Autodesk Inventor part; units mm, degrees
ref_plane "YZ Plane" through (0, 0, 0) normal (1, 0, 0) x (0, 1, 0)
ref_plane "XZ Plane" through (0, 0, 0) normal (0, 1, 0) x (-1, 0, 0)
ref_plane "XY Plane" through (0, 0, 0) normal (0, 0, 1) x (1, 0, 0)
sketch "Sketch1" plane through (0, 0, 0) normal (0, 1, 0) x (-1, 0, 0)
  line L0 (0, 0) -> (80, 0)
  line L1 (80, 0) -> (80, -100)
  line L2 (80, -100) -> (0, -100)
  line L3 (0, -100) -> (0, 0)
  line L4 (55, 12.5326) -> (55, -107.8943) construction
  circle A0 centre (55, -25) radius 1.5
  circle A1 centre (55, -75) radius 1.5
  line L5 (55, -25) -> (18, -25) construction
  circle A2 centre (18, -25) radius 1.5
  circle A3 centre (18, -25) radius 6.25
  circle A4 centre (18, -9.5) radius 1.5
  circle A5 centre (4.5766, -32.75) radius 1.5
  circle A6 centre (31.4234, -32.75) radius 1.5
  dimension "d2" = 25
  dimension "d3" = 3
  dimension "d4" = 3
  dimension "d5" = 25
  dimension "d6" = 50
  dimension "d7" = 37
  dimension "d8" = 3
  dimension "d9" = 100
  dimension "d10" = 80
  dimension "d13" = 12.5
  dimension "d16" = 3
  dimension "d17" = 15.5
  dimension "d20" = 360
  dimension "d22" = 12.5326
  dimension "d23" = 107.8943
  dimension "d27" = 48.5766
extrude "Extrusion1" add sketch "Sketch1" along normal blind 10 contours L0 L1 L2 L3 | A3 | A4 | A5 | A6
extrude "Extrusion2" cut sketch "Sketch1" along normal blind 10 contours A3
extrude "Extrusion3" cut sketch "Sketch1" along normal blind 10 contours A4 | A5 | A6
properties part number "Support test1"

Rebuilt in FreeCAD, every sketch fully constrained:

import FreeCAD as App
import Part
import Sketcher

V = App.Vector
Q = App.Units.Quantity

doc = App.newDocument("Part")
params = doc.addObject("Spreadsheet::Sheet", "Params")
for row, (alias, value) in enumerate([
    ("sketch1_diameter", "3 mm"),
    ("sketch1_width", "80 mm"),
    ("sketch1_height", "100 mm"),
    ("pad1_length", "10 mm"),
    ("sketch2_diameter", "3 mm"),
    ("sketch2_diameter2", "12.5 mm"),
    ("pocket1_length", "10 mm"),
    ("sketch3_diameter", "3 mm"),
    ("pocket2_length", "10 mm"),
], start=1):
    params.set(f"A{row}", alias)
    params.set(f"B{row}", "=" + value)
    params.setAlias(f"B{row}", alias)

body = doc.addObject("PartDesign::Body", "Body")

sketch1 = body.newObject("Sketcher::SketchObject", "Sketch")
sketch1.AttachmentSupport = (doc.getObject("XZ_Plane"), [""])
sketch1.MapMode = "FlatFace"
sketch1.addGeometry([
    Part.LineSegment(V(-80, 0, 0), V(0, 0, 0)),
    Part.LineSegment(V(0, 0, 0), V(0, -100, 0)),
    Part.LineSegment(V(0, -100, 0), V(-80, -100, 0)),
    Part.LineSegment(V(-80, -100, 0), V(-80, 0, 0)),
    Part.Circle(V(-55, -75, 0), V(0, 0, 1), 1.5),
    Part.Circle(V(-55, -25, 0), V(0, 0, 1), 1.5),
    Part.Circle(V(-18, -25, 0), V(0, 0, 1), 1.5),
], False)
sketch1.addConstraint([
    Sketcher.Constraint("Coincident", 0, 2, 1, 1),
    Sketcher.Constraint("Coincident", 1, 2, 2, 1),
    Sketcher.Constraint("Coincident", 2, 2, 3, 1),
    Sketcher.Constraint("Coincident", 3, 2, 0, 1),
    Sketcher.Constraint("Horizontal", 0),
    Sketcher.Constraint("Vertical", 1),
    Sketcher.Constraint("Horizontal", 2),
    Sketcher.Constraint("Vertical", 3),
    Sketcher.Constraint("Coincident", 0, 2, -1, 1),
    Sketcher.Constraint("Equal", 4, 5),
    Sketcher.Constraint("Equal", 5, 6),
    Sketcher.Constraint("Horizontal", 5, 3, 6, 3),
    Sketcher.Constraint("Vertical", 4, 3, 5, 3),
    Sketcher.Constraint("Diameter", 4, Q("3 mm")),
    Sketcher.Constraint("DistanceX", 0, 1, 0, 2, Q("80 mm")),
    Sketcher.Constraint("DistanceY", 1, 2, 1, 1, Q("100 mm")),
    Sketcher.Constraint("DistanceY", 5, 3, -1, 1, Q("25 mm")),
    Sketcher.Constraint("DistanceY", 4, 3, 5, 3, Q("50 mm")),
    Sketcher.Constraint("DistanceX", 5, 3, 6, 3, Q("37 mm")),
    Sketcher.Constraint("DistanceX", 2, 2, 4, 3, Q("25 mm")),
])
sketch1.setExpression("Constraints[13]", "Params.sketch1_diameter")
sketch1.setExpression("Constraints[14]", "Params.sketch1_width")
sketch1.setExpression("Constraints[15]", "Params.sketch1_height")
pad1 = body.newObject("PartDesign::Pad", "Pad")
pad1.Profile = sketch1
pad1.setExpression("Length", "Params.pad1_length")
pad1.Reversed = True

sketch2 = body.newObject("Sketcher::SketchObject", "Sketch001")
sketch2.AttachmentSupport = (doc.getObject("XZ_Plane"), [""])
sketch2.MapMode = "FlatFace"
sketch2.addGeometry([
    Part.Circle(V(-18, -25, 0), V(0, 0, 1), 6.2),
    Part.Circle(V(-18, -25, 0), V(0, 0, 1), 1.5),
], False)
sketch2.addConstraint([
    Sketcher.Constraint("Coincident", 1, 3, 0, 3),
    Sketcher.Constraint("Diameter", 1, Q("3 mm")),
    Sketcher.Constraint("Diameter", 0, Q("12.5 mm")),
    Sketcher.Constraint("DistanceY", 0, 3, -1, 1, Q("25 mm")),
    Sketcher.Constraint("DistanceX", 0, 3, -1, 1, Q("18 mm")),
])
sketch2.setExpression("Constraints[1]", "Params.sketch2_diameter")
sketch2.setExpression("Constraints[2]", "Params.sketch2_diameter2")
pocket1 = body.newObject("PartDesign::Pocket", "Pocket")
pocket1.Profile = sketch2
pocket1.setExpression("Length", "Params.pocket1_length")

sketch3 = body.newObject("Sketcher::SketchObject", "Sketch002")
sketch3.AttachmentSupport = (doc.getObject("XZ_Plane"), [""])
sketch3.MapMode = "FlatFace"
sketch3.addGeometry([
    Part.Circle(V(-18, -9.5, 0), V(0, 0, 1), 1.5),
    Part.Circle(V(-4.6, -32.8, 0), V(0, 0, 1), 1.5),
    Part.Circle(V(-31.4, -32.8, 0), V(0, 0, 1), 1.5),
], False)
sketch3.addConstraint([
    Sketcher.Constraint("Equal", 0, 1),
    Sketcher.Constraint("Equal", 1, 2),
    Sketcher.Constraint("Horizontal", 1, 3, 2, 3),
    Sketcher.Constraint("Diameter", 0, Q("3 mm")),
    Sketcher.Constraint("DistanceX", 0, 3, -1, 1, Q("18 mm")),
    Sketcher.Constraint("DistanceY", 0, 3, -1, 1, Q("9.5 mm")),
    Sketcher.Constraint("DistanceY", 1, 3, -1, 1, Q("32.75 mm")),
    Sketcher.Constraint("DistanceX", 1, 3, -1, 1, Q("4.5766 mm")),
    Sketcher.Constraint("DistanceX", 2, 3, -1, 1, Q("31.4234 mm")),
])
sketch3.setExpression("Constraints[3]", "Params.sketch3_diameter")
pocket2 = body.newObject("PartDesign::Pocket", "Pocket001")
pocket2.Profile = sketch3
pocket2.setExpression("Length", "Params.pocket2_length")

doc.recompute()
